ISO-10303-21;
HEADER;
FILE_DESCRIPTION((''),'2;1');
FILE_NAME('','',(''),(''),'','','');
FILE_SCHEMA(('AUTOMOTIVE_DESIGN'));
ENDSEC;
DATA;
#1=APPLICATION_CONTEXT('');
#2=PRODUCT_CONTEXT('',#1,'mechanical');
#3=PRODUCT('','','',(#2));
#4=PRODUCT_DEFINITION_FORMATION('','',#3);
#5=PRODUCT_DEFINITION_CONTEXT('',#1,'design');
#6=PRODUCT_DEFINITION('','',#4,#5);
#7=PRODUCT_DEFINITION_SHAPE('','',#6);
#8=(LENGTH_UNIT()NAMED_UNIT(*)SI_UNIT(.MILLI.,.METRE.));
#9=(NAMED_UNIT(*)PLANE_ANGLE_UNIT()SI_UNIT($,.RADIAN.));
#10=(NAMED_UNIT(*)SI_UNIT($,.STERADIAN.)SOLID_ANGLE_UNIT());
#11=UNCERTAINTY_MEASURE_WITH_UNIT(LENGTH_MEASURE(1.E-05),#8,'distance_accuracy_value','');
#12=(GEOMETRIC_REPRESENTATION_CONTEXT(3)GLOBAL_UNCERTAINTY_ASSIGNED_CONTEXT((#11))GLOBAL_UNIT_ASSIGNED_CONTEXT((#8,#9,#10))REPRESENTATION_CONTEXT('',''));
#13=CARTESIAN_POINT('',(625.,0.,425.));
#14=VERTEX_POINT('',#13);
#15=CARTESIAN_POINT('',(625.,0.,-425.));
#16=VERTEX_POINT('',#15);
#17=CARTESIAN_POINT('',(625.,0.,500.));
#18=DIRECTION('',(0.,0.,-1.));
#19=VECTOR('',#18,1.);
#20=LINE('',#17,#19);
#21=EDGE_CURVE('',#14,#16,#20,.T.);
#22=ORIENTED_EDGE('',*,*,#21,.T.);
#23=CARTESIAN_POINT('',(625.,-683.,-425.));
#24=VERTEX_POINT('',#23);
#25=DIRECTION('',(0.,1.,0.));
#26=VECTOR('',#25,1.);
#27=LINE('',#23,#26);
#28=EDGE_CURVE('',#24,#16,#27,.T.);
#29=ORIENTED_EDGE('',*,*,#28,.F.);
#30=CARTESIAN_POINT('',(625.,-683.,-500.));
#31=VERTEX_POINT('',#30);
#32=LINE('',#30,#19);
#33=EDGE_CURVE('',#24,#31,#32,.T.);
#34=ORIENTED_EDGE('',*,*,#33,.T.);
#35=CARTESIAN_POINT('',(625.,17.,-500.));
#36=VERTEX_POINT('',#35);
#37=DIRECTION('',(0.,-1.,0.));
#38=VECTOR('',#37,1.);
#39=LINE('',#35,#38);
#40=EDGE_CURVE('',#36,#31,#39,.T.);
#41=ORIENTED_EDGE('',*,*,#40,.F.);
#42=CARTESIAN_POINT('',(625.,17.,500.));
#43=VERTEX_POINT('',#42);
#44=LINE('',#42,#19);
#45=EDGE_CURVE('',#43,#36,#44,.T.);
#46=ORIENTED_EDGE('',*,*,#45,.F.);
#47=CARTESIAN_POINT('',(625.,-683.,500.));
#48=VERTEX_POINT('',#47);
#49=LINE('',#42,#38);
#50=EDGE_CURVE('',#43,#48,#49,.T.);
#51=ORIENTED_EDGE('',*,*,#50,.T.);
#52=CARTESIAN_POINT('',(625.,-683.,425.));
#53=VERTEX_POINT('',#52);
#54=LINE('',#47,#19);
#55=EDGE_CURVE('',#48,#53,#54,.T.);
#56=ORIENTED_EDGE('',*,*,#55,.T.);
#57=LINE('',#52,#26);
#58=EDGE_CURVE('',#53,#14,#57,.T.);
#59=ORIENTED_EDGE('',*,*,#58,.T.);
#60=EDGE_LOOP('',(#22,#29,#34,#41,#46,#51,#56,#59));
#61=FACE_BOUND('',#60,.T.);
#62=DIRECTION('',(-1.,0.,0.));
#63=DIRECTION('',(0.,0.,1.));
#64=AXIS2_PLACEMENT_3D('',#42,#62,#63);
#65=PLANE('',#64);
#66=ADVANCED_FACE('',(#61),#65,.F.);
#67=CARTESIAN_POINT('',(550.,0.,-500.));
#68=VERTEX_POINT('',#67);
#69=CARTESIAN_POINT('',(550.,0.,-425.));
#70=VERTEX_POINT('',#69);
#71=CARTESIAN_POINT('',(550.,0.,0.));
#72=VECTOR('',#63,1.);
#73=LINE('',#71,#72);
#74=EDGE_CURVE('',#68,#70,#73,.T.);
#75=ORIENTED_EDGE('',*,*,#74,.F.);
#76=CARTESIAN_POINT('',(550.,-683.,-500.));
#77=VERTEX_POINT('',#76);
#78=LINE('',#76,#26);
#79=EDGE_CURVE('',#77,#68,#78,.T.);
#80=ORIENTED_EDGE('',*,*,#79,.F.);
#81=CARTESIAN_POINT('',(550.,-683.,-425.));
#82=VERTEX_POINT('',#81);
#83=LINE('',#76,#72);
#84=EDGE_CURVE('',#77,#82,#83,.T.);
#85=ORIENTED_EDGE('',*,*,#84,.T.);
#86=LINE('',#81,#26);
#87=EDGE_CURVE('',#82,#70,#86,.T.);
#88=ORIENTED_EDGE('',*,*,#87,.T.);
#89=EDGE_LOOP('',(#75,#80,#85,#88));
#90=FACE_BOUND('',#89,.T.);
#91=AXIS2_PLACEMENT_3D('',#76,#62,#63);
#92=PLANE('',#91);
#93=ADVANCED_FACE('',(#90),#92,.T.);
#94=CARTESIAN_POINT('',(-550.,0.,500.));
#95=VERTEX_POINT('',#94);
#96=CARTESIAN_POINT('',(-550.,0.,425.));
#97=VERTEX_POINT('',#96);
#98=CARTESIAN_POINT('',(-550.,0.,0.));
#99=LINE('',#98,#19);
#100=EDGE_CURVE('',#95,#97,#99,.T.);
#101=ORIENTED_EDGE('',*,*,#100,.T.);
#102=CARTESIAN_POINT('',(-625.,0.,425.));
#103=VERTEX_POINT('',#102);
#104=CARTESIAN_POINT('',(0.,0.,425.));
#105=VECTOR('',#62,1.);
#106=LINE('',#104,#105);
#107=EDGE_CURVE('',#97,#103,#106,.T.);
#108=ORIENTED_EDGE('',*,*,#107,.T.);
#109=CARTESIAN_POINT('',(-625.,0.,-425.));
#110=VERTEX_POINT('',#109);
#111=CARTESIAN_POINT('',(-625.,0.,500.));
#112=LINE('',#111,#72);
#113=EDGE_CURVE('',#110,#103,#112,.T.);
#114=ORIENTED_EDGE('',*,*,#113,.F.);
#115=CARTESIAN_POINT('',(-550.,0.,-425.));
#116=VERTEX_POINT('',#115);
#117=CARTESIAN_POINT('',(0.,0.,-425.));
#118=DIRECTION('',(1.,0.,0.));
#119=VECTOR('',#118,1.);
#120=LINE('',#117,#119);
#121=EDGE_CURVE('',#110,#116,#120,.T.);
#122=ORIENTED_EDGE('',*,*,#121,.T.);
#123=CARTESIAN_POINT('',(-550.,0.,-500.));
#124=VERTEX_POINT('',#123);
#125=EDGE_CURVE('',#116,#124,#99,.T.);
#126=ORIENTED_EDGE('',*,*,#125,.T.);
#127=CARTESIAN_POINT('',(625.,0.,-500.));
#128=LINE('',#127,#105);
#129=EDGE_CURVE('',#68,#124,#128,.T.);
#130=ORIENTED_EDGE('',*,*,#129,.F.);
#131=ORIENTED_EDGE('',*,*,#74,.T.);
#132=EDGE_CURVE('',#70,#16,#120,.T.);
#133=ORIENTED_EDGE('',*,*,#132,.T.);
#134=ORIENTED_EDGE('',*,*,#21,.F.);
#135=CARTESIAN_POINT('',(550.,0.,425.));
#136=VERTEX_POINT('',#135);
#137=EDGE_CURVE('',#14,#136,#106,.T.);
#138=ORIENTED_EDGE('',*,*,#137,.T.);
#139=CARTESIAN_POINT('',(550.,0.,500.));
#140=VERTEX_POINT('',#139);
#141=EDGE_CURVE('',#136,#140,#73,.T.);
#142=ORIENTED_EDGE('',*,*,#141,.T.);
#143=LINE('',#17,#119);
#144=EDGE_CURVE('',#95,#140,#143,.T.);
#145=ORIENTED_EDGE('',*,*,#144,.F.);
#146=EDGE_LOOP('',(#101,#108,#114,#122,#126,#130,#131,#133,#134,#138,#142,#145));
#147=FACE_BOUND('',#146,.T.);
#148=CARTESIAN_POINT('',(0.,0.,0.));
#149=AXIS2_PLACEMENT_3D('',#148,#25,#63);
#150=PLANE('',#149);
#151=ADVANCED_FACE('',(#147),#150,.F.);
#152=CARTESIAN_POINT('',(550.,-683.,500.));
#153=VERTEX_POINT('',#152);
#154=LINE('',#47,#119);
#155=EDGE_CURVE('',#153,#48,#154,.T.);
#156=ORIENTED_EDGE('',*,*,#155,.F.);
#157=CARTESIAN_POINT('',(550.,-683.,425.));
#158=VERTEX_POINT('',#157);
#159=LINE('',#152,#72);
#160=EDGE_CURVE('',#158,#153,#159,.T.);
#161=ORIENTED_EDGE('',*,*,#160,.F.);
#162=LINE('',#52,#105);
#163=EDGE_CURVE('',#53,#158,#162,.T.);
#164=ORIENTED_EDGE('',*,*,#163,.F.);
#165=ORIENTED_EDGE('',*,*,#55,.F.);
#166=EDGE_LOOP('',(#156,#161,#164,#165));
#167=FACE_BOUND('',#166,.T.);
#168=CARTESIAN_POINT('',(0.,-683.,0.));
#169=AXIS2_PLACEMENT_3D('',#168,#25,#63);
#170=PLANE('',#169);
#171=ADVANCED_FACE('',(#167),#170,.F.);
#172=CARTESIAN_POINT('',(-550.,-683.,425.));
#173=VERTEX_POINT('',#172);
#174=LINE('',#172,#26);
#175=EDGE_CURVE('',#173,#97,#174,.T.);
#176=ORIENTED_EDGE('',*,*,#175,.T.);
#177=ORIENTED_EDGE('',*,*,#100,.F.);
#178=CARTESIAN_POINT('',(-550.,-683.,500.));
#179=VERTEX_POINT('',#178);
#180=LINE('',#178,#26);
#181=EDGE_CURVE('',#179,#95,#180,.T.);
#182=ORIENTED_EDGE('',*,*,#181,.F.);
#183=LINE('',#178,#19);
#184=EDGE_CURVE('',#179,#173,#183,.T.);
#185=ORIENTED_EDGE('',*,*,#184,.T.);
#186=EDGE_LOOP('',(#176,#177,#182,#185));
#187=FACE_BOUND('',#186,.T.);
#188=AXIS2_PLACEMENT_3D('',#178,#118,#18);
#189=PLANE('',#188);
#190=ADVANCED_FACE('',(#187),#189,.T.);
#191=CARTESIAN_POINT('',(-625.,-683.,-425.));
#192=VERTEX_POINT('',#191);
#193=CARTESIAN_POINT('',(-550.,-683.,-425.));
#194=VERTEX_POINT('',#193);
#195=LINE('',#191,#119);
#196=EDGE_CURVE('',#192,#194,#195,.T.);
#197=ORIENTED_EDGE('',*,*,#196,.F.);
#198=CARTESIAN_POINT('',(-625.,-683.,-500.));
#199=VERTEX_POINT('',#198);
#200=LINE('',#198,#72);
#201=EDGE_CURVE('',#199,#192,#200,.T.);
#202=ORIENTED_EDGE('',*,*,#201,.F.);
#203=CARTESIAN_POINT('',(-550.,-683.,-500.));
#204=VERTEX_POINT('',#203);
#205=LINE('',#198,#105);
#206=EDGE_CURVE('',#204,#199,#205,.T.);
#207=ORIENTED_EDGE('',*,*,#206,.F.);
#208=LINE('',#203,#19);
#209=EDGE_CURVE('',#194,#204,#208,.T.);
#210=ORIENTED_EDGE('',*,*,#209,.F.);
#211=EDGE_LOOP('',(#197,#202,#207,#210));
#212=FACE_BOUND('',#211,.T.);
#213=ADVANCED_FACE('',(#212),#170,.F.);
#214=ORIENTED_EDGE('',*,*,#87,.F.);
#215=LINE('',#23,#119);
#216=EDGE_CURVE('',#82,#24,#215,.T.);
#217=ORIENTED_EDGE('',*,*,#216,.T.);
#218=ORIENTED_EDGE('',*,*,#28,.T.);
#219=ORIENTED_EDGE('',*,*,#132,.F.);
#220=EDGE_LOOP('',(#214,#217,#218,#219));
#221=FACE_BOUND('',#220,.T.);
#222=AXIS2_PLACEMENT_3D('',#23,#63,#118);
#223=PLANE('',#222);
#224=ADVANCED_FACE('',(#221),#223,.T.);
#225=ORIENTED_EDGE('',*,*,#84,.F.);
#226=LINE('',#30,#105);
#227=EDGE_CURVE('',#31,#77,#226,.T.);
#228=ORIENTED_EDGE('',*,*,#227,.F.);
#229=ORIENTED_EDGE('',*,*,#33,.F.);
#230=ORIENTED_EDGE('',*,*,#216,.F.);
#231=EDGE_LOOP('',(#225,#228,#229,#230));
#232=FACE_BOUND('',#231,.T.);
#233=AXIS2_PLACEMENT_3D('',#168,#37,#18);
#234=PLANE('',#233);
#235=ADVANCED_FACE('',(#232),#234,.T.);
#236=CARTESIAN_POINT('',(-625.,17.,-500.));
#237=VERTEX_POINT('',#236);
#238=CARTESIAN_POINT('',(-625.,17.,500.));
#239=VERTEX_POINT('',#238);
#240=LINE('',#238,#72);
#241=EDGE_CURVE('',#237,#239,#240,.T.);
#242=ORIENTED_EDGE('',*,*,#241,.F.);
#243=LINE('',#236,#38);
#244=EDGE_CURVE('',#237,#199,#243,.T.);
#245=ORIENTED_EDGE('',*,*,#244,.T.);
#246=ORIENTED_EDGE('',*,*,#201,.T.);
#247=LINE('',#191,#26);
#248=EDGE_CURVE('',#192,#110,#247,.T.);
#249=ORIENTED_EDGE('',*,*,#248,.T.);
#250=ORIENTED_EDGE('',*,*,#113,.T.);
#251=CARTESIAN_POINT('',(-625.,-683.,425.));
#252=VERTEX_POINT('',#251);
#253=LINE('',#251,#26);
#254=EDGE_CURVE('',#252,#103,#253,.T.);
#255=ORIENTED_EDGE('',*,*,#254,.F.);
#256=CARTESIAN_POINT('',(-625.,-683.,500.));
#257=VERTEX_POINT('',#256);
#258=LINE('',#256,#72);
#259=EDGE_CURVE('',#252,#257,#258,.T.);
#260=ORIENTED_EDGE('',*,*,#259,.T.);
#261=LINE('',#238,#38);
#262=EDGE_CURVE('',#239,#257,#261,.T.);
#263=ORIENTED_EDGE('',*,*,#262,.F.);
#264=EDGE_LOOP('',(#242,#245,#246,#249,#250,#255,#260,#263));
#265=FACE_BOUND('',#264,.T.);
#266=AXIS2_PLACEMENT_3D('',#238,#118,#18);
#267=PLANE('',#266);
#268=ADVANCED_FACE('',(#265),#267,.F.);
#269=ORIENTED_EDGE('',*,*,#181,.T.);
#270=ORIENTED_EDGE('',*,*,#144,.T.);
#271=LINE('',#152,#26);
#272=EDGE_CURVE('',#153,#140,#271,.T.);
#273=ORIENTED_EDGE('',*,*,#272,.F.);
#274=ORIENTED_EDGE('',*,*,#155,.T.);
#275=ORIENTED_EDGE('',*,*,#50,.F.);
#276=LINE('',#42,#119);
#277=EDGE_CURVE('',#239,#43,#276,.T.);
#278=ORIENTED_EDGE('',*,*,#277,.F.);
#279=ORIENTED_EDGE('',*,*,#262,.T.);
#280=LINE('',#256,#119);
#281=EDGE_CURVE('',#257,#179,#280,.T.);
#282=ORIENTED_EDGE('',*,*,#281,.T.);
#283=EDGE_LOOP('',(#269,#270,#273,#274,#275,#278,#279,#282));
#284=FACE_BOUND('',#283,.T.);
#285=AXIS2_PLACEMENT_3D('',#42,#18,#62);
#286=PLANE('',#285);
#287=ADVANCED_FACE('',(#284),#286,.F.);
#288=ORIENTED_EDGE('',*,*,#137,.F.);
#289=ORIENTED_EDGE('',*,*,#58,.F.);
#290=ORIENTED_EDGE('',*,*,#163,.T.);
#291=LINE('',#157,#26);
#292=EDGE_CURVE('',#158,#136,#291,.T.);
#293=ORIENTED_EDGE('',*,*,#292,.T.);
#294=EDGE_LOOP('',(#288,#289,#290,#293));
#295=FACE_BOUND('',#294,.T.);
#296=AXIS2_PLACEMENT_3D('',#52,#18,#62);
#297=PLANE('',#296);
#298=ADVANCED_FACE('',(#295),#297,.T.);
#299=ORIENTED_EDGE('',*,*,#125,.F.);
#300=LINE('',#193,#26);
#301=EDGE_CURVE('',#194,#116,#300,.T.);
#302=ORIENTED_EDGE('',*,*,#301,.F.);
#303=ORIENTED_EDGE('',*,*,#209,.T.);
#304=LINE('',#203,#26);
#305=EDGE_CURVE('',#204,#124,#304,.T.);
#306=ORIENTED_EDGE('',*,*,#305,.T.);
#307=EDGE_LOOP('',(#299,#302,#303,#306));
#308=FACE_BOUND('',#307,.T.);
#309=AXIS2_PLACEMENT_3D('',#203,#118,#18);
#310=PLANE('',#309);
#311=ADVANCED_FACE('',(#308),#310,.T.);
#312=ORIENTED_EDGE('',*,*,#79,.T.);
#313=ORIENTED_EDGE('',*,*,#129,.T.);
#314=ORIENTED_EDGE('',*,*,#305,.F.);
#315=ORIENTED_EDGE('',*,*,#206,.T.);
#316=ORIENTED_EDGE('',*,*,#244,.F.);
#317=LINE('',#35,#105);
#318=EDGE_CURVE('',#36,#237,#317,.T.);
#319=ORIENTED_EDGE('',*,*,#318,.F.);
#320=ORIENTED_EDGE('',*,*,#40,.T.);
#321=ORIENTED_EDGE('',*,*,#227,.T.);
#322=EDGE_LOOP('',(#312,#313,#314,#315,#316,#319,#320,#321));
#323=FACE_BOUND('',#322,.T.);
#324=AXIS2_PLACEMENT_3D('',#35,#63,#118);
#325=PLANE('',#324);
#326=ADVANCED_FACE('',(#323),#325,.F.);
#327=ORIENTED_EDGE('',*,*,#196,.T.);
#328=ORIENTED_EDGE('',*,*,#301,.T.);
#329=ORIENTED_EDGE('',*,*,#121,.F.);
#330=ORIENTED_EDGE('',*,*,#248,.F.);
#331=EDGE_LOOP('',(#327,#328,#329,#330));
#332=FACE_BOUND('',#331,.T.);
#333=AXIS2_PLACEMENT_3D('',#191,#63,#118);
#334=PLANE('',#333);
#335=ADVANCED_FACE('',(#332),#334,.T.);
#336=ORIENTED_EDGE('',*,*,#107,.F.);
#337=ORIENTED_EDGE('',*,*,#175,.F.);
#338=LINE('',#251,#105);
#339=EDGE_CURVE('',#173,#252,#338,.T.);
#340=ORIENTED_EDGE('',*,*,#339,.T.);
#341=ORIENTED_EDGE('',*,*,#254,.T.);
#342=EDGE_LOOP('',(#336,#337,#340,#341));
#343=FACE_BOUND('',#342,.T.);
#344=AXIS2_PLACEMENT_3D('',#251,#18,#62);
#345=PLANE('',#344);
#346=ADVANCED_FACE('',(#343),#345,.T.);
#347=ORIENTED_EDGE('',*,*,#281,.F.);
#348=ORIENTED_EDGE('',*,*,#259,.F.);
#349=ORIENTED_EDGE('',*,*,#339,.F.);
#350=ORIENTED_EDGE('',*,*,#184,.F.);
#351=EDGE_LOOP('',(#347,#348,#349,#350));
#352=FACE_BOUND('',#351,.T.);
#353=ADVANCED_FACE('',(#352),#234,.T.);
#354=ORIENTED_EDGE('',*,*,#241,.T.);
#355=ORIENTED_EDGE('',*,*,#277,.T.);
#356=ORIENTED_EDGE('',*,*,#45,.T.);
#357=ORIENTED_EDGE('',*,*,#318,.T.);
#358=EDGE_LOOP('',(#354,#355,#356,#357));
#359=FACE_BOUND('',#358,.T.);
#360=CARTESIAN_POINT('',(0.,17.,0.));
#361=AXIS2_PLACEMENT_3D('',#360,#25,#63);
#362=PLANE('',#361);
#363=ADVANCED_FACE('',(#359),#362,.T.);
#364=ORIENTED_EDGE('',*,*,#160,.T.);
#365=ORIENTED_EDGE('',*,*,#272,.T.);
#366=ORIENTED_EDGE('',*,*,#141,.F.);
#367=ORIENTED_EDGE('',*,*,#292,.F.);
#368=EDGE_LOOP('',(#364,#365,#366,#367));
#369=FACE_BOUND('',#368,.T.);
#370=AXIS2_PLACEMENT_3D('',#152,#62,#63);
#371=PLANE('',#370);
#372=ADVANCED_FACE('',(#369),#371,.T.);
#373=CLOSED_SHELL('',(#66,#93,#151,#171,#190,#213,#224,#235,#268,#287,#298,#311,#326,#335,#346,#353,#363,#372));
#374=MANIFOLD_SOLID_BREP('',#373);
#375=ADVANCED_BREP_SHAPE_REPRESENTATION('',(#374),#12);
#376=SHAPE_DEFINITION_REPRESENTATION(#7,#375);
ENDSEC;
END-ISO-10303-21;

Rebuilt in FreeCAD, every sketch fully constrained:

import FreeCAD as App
import Part
import Sketcher

doc = App.newDocument("Part")
params = doc.addObject("Spreadsheet::Sheet", "Params")
for row, (alias, value) in enumerate([
    ("sketch1_width", "1250 mm"),
    ("sketch1_height", "1000 mm"),
    ("pad1_length", "17 mm"),
    ("sketch2_width", "75 mm"),
    ("pad2_length", "700 mm"),
], start=1):
    params.set(f"A{row}", alias)
    params.set(f"B{row}", "=" + value)
    params.setAlias(f"B{row}", alias)

body = doc.addObject("PartDesign::Body", "Body")

# Sketch on XZ plane
sketch1 = body.newObject("Sketcher::SketchObject", "Sketch")
sketch1.AttachmentSupport = (doc.getObject("XZ_Plane"), [""])
sketch1.MapMode = "FlatFace"
sketch1.addGeometry(Part.LineSegment(App.Vector(-625, -500, 0), App.Vector(-625, 500, 0)), False)
sketch1.addGeometry(Part.LineSegment(App.Vector(-625, 500, 0), App.Vector(625, 500, 0)), False)
sketch1.addGeometry(Part.LineSegment(App.Vector(625, 500, 0), App.Vector(625, -500, 0)), False)
sketch1.addGeometry(Part.LineSegment(App.Vector(625, -500, 0), App.Vector(-625, -500, 0)), False)
sketch1.addConstraint(Sketcher.Constraint("Coincident", 0, 2, 1, 1))
sketch1.addConstraint(Sketcher.Constraint("Coincident", 1, 2, 2, 1))
sketch1.addConstraint(Sketcher.Constraint("Coincident", 2, 2, 3, 1))
sketch1.addConstraint(Sketcher.Constraint("Coincident", 3, 2, 0, 1))
sketch1.addConstraint(Sketcher.Constraint("Vertical", 0))
sketch1.addConstraint(Sketcher.Constraint("Horizontal", 1))
sketch1.addConstraint(Sketcher.Constraint("Vertical", 2))
sketch1.addConstraint(Sketcher.Constraint("Horizontal", 3))
sketch1.addConstraint(Sketcher.Constraint("Symmetric", 0, 2, 2, 2, -1, 1))
sketch1.addConstraint(Sketcher.Constraint("DistanceX", 1, 1, 1, 2, 1250.0))
sketch1.addConstraint(Sketcher.Constraint("DistanceY", 0, 1, 0, 2, 1000.0))
sketch1.setExpression("Constraints[9]", "Params.sketch1_width")
sketch1.setExpression("Constraints[10]", "Params.sketch1_height")
pad1 = body.newObject("PartDesign::Pad", "Pad")
pad1.Profile = sketch1
pad1.setExpression("Length", "Params.pad1_length")
pad1.Reversed = True

# Sketch on XZ plane
sketch2 = body.newObject("Sketcher::SketchObject", "Sketch001")
sketch2.AttachmentSupport = (doc.getObject("XZ_Plane"), [""])
sketch2.MapMode = "FlatFace"
sketch2.AttachmentOffset = App.Placement(App.Vector(0, 0, -17), App.Rotation())
sketch2.addGeometry(Part.LineSegment(App.Vector(-625, 425, 0), App.Vector(-625, 500, 0)), False)
sketch2.addGeometry(Part.LineSegment(App.Vector(-625, 500, 0), App.Vector(-550, 500, 0)), False)
sketch2.addGeometry(Part.LineSegment(App.Vector(-550, 500, 0), App.Vector(-550, 425, 0)), False)
sketch2.addGeometry(Part.LineSegment(App.Vector(-550, 425, 0), App.Vector(-625, 425, 0)), False)
sketch2.addGeometry(Part.LineSegment(App.Vector(-625, -500, 0), App.Vector(-625, -425, 0)), False)
sketch2.addGeometry(Part.LineSegment(App.Vector(-625, -425, 0), App.Vector(-550, -425, 0)), False)
sketch2.addGeometry(Part.LineSegment(App.Vector(-550, -425, 0), App.Vector(-550, -500, 0)), False)
sketch2.addGeometry(Part.LineSegment(App.Vector(-550, -500, 0), App.Vector(-625, -500, 0)), False)
sketch2.addGeometry(Part.LineSegment(App.Vector(550, 425, 0), App.Vector(550, 500, 0)), False)
sketch2.addGeometry(Part.LineSegment(App.Vector(550, 500, 0), App.Vector(625, 500, 0)), False)
sketch2.addGeometry(Part.LineSegment(App.Vector(625, 500, 0), App.Vector(625, 425, 0)), False)
sketch2.addGeometry(Part.LineSegment(App.Vector(625, 425, 0), App.Vector(550, 425, 0)), False)
sketch2.addGeometry(Part.LineSegment(App.Vector(550, -500, 0), App.Vector(550, -425, 0)), False)
sketch2.addGeometry(Part.LineSegment(App.Vector(550, -425, 0), App.Vector(625, -425, 0)), False)
sketch2.addGeometry(Part.LineSegment(App.Vector(625, -425, 0), App.Vector(625, -500, 0)), False)
sketch2.addGeometry(Part.LineSegment(App.Vector(625, -500, 0), App.Vector(550, -500, 0)), False)
sketch2.addConstraint(Sketcher.Constraint("Coincident", 0, 2, 1, 1))
sketch2.addConstraint(Sketcher.Constraint("Coincident", 1, 2, 2, 1))
sketch2.addConstraint(Sketcher.Constraint("Coincident", 2, 2, 3, 1))
sketch2.addConstraint(Sketcher.Constraint("Coincident", 3, 2, 0, 1))
sketch2.addConstraint(Sketcher.Constraint("Coincident", 4, 2, 5, 1))
sketch2.addConstraint(Sketcher.Constraint("Coincident", 5, 2, 6, 1))
sketch2.addConstraint(Sketcher.Constraint("Coincident", 6, 2, 7, 1))
sketch2.addConstraint(Sketcher.Constraint("Coincident", 7, 2, 4, 1))
sketch2.addConstraint(Sketcher.Constraint("Coincident", 8, 2, 9, 1))
sketch2.addConstraint(Sketcher.Constraint("Coincident", 9, 2, 10, 1))
sketch2.addConstraint(Sketcher.Constraint("Coincident", 10, 2, 11, 1))
sketch2.addConstraint(Sketcher.Constraint("Coincident", 11, 2, 8, 1))
sketch2.addConstraint(Sketcher.Constraint("Coincident", 12, 2, 13, 1))
sketch2.addConstraint(Sketcher.Constraint("Coincident", 13, 2, 14, 1))
sketch2.addConstraint(Sketcher.Constraint("Coincident", 14, 2, 15, 1))
sketch2.addConstraint(Sketcher.Constraint("Coincident", 15, 2, 12, 1))
sketch2.addConstraint(Sketcher.Constraint("Vertical", 0))
sketch2.addConstraint(Sketcher.Constraint("Horizontal", 1))
sketch2.addConstraint(Sketcher.Constraint("Vertical", 2))
sketch2.addConstraint(Sketcher.Constraint("Horizontal", 3))
sketch2.addConstraint(Sketcher.Constraint("Vertical", 4))
sketch2.addConstraint(Sketcher.Constraint("Horizontal", 5))
sketch2.addConstraint(Sketcher.Constraint("Vertical", 6))
sketch2.addConstraint(Sketcher.Constraint("Horizontal", 7))
sketch2.addConstraint(Sketcher.Constraint("Vertical", 8))
sketch2.addConstraint(Sketcher.Constraint("Horizontal", 9))
sketch2.addConstraint(Sketcher.Constraint("Vertical", 10))
sketch2.addConstraint(Sketcher.Constraint("Horizontal", 11))
sketch2.addConstraint(Sketcher.Constraint("Vertical", 12))
sketch2.addConstraint(Sketcher.Constraint("Horizontal", 13))
sketch2.addConstraint(Sketcher.Constraint("Vertical", 14))
sketch2.addConstraint(Sketcher.Constraint("Horizontal", 15))
sketch2.addConstraint(Sketcher.Constraint("Symmetric", 6, 2, 8, 2, -1, 1))
sketch2.addConstraint(Sketcher.Constraint("Symmetric", 4, 2, 10, 2, -1, 1))
sketch2.addConstraint(Sketcher.Constraint("Symmetric", 2, 2, 12, 2, -1, 1))
sketch2.addConstraint(Sketcher.Constraint("Symmetric", 0, 2, 14, 2, -1, 1))
sketch2.addConstraint(Sketcher.Constraint("Symmetric", 1, 2, 8, 2, -2))
sketch2.addConstraint(Sketcher.Constraint("Symmetric", 3, 2, 10, 2, -2))
sketch2.addConstraint(Sketcher.Constraint("Equal", 15, 0))
sketch2.addConstraint(Sketcher.Constraint("DistanceX", 1, 1, 1, 2, 75.0))
sketch2.addConstraint(Sketcher.Constraint("DistanceX", 0, 2, -1, 1, 625.0))
sketch2.addConstraint(Sketcher.Constraint("DistanceY", -1, 1, 0, 2, 500.0))
sketch2.setExpression("Constraints[39]", "Params.sketch2_width")
pad2 = body.newObject("PartDesign::Pad", "Pad001")
pad2.Profile = sketch2
pad2.setExpression("Length", "Params.pad2_length")

doc.recompute()
